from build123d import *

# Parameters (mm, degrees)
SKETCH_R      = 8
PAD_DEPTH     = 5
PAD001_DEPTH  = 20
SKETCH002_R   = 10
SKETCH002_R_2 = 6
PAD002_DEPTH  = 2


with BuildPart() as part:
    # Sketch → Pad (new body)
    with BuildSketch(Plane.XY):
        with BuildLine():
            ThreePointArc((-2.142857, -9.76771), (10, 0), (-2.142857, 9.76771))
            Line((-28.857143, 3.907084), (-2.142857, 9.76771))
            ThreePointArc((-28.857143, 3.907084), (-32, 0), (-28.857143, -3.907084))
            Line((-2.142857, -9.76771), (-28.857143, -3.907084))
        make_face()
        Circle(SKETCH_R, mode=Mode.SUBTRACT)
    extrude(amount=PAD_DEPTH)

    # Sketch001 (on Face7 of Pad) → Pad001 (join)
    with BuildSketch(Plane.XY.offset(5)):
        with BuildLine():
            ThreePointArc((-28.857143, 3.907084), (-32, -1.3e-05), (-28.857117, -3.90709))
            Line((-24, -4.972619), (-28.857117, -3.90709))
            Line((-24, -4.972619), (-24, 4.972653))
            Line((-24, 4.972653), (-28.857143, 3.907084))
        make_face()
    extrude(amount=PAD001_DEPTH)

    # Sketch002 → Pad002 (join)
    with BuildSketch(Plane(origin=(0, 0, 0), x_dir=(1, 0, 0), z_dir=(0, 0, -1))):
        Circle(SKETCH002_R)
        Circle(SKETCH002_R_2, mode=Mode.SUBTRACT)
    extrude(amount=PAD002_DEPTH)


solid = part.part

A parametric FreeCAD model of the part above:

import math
import FreeCAD as App
import Part
import Sketcher
Q = App.Units.Quantity

doc = App.newDocument("Part")
params = doc.addObject("Spreadsheet::Sheet", "Params")
for row, (alias, value) in enumerate([
    ("sketch1_diameter", "16 mm"),
    ("sketch1_radius", "10 mm"),
    ("sketch1_radius2", "4 mm"),
    ("pad1_length", "5 mm"),
    ("sketch2_radius", "4 mm"),
    ("pad2_length", "20 mm"),
    ("sketch3_diameter", "20 mm"),
    ("sketch3_diameter2", "12 mm"),
    ("pad3_length", "2 mm"),
], start=1):
    params.set(f"A{row}", alias)
    params.set(f"B{row}", "=" + value)
    params.setAlias(f"B{row}", alias)

body = doc.addObject("PartDesign::Body", "Body")

# Sketch on XY plane
sketch1 = body.newObject("Sketcher::SketchObject", "Sketch")
sketch1.AttachmentSupport = (doc.getObject("XY_Plane"), [""])
sketch1.MapMode = "FlatFace"
sketch1.addGeometry(Part.ArcOfCircle(Part.Circle(App.Vector(0, 0, 0), App.Vector(0, 0, 1), 10), math.radians(-102.373626), math.radians(102.373626)), False)
sketch1.addGeometry(Part.LineSegment(App.Vector(-2.142857, 9.76771, 0), App.Vector(-28.857143, 3.907084, 0)), False)
sketch1.addGeometry(Part.ArcOfCircle(Part.Circle(App.Vector(-28, 0, 0), App.Vector(0, 0, 1), 4), math.radians(102.373626), math.radians(257.626374)), False)
sketch1.addGeometry(Part.LineSegment(App.Vector(-28.857143, -3.907084, 0), App.Vector(-2.142857, -9.76771, 0)), False)
sketch1.addGeometry(Part.Circle(App.Vector(0, 0, 0), App.Vector(0, 0, 1), 8), False)
sketch1.addConstraint(Sketcher.Constraint("Tangent", 0, 2, 1, 1))
sketch1.addConstraint(Sketcher.Constraint("Tangent", 1, 2, 2, 1))
sketch1.addConstraint(Sketcher.Constraint("Tangent", 2, 2, 3, 1))
sketch1.addConstraint(Sketcher.Constraint("Tangent", 3, 2, 0, 1))
sketch1.addConstraint(Sketcher.Constraint("Coincident", 0, 3, -1, 1))
sketch1.addConstraint(Sketcher.Constraint("Coincident", 4, 3, -1, 1))
sketch1.addConstraint(Sketcher.Constraint("PointOnObject", 2, 3, -1))
sketch1.addConstraint(Sketcher.Constraint("Diameter", 4, Q("16 mm")))
sketch1.addConstraint(Sketcher.Constraint("Radius", 0, Q("10 mm")))
sketch1.addConstraint(Sketcher.Constraint("Radius", 2, Q("4 mm")))
sketch1.addConstraint(Sketcher.Constraint("DistanceX", 2, 3, -1, 1, Q("28 mm")))
sketch1.setExpression("Constraints[7]", "Params.sketch1_diameter")
sketch1.setExpression("Constraints[8]", "Params.sketch1_radius")
sketch1.setExpression("Constraints[9]", "Params.sketch1_radius2")
pad1 = body.newObject("PartDesign::Pad", "Pad")
pad1.Profile = sketch1
pad1.setExpression("Length", "Params.pad1_length")

# Sketch on XY plane
sketch2 = body.newObject("Sketcher::SketchObject", "Sketch001")
sketch2.AttachmentSupport = (doc.getObject("XY_Plane"), [""])
sketch2.MapMode = "FlatFace"
sketch2.AttachmentOffset = App.Placement(App.Vector(0, 0, 5), App.Rotation())
sketch2.addGeometry(Part.ArcOfCircle(Part.Circle(App.Vector(-28, 0, 0), App.Vector(0, 0, 1), 4), math.radians(102.373628), math.radians(257.626753)), False)
sketch2.addGeometry(Part.LineSegment(App.Vector(-28.857117, -3.90709, 0), App.Vector(-24, -4.972619, 0)), False)
sketch2.addGeometry(Part.LineSegment(App.Vector(-24, -4.972619, 0), App.Vector(-24, 4.972653, 0)), False)
sketch2.addGeometry(Part.LineSegment(App.Vector(-24, 4.972653, 0), App.Vector(-28.857143, 3.907084, 0)), False)
sketch2.addConstraint(Sketcher.Constraint("Tangent", 0, 2, 1, 1))
sketch2.addConstraint(Sketcher.Constraint("Coincident", 1, 2, 2, 1))
sketch2.addConstraint(Sketcher.Constraint("Coincident", 2, 2, 3, 1))
sketch2.addConstraint(Sketcher.Constraint("Tangent", 3, 2, 0, 1))
sketch2.addConstraint(Sketcher.Constraint("Vertical", 2))
sketch2.addConstraint(Sketcher.Constraint("PointOnObject", 0, 3, -1))
sketch2.addConstraint(Sketcher.Constraint("Radius", 0, Q("4 mm")))
sketch2.addConstraint(Sketcher.Constraint("DistanceX", 0, 3, -1, 1, Q("28 mm")))
sketch2.addConstraint(Sketcher.Constraint("DistanceX", 1, 2, -1, 1, Q("24 mm")))
sketch2.addConstraint(Sketcher.Constraint("DistanceY", 2, 1, 2, 2, Q("9.945272 mm")))
sketch2.addConstraint(Sketcher.Constraint("Distance", 1, Q("4.972619 mm")))
sketch2.setExpression("Constraints[6]", "Params.sketch2_radius")
pad2 = body.newObject("PartDesign::Pad", "Pad001")
pad2.Profile = sketch2
pad2.setExpression("Length", "Params.pad2_length")

# Sketch on XY plane
sketch3 = body.newObject("Sketcher::SketchObject", "Sketch002")
sketch3.AttachmentSupport = (doc.getObject("XY_Plane"), [""])
sketch3.MapMode = "FlatFace"
sketch3.addGeometry(Part.Circle(App.Vector(0, 0, 0), App.Vector(0, 0, 1), 10), False)
sketch3.addGeometry(Part.Circle(App.Vector(0, 0, 0), App.Vector(0, 0, 1), 6), False)
sketch3.addConstraint(Sketcher.Constraint("Coincident", 0, 3, -1, 1))
sketch3.addConstraint(Sketcher.Constraint("Coincident", 1, 3, -1, 1))
sketch3.addConstraint(Sketcher.Constraint("Diameter", 0, Q("20 mm")))
sketch3.addConstraint(Sketcher.Constraint("Diameter", 1, Q("12 mm")))
sketch3.setExpression("Constraints[2]", "Params.sketch3_diameter")
sketch3.setExpression("Constraints[3]", "Params.sketch3_diameter2")
pad3 = body.newObject("PartDesign::Pad", "Pad002")
pad3.Profile = sketch3
pad3.setExpression("Length", "Params.pad3_length")
pad3.Reversed = True

doc.recompute()
